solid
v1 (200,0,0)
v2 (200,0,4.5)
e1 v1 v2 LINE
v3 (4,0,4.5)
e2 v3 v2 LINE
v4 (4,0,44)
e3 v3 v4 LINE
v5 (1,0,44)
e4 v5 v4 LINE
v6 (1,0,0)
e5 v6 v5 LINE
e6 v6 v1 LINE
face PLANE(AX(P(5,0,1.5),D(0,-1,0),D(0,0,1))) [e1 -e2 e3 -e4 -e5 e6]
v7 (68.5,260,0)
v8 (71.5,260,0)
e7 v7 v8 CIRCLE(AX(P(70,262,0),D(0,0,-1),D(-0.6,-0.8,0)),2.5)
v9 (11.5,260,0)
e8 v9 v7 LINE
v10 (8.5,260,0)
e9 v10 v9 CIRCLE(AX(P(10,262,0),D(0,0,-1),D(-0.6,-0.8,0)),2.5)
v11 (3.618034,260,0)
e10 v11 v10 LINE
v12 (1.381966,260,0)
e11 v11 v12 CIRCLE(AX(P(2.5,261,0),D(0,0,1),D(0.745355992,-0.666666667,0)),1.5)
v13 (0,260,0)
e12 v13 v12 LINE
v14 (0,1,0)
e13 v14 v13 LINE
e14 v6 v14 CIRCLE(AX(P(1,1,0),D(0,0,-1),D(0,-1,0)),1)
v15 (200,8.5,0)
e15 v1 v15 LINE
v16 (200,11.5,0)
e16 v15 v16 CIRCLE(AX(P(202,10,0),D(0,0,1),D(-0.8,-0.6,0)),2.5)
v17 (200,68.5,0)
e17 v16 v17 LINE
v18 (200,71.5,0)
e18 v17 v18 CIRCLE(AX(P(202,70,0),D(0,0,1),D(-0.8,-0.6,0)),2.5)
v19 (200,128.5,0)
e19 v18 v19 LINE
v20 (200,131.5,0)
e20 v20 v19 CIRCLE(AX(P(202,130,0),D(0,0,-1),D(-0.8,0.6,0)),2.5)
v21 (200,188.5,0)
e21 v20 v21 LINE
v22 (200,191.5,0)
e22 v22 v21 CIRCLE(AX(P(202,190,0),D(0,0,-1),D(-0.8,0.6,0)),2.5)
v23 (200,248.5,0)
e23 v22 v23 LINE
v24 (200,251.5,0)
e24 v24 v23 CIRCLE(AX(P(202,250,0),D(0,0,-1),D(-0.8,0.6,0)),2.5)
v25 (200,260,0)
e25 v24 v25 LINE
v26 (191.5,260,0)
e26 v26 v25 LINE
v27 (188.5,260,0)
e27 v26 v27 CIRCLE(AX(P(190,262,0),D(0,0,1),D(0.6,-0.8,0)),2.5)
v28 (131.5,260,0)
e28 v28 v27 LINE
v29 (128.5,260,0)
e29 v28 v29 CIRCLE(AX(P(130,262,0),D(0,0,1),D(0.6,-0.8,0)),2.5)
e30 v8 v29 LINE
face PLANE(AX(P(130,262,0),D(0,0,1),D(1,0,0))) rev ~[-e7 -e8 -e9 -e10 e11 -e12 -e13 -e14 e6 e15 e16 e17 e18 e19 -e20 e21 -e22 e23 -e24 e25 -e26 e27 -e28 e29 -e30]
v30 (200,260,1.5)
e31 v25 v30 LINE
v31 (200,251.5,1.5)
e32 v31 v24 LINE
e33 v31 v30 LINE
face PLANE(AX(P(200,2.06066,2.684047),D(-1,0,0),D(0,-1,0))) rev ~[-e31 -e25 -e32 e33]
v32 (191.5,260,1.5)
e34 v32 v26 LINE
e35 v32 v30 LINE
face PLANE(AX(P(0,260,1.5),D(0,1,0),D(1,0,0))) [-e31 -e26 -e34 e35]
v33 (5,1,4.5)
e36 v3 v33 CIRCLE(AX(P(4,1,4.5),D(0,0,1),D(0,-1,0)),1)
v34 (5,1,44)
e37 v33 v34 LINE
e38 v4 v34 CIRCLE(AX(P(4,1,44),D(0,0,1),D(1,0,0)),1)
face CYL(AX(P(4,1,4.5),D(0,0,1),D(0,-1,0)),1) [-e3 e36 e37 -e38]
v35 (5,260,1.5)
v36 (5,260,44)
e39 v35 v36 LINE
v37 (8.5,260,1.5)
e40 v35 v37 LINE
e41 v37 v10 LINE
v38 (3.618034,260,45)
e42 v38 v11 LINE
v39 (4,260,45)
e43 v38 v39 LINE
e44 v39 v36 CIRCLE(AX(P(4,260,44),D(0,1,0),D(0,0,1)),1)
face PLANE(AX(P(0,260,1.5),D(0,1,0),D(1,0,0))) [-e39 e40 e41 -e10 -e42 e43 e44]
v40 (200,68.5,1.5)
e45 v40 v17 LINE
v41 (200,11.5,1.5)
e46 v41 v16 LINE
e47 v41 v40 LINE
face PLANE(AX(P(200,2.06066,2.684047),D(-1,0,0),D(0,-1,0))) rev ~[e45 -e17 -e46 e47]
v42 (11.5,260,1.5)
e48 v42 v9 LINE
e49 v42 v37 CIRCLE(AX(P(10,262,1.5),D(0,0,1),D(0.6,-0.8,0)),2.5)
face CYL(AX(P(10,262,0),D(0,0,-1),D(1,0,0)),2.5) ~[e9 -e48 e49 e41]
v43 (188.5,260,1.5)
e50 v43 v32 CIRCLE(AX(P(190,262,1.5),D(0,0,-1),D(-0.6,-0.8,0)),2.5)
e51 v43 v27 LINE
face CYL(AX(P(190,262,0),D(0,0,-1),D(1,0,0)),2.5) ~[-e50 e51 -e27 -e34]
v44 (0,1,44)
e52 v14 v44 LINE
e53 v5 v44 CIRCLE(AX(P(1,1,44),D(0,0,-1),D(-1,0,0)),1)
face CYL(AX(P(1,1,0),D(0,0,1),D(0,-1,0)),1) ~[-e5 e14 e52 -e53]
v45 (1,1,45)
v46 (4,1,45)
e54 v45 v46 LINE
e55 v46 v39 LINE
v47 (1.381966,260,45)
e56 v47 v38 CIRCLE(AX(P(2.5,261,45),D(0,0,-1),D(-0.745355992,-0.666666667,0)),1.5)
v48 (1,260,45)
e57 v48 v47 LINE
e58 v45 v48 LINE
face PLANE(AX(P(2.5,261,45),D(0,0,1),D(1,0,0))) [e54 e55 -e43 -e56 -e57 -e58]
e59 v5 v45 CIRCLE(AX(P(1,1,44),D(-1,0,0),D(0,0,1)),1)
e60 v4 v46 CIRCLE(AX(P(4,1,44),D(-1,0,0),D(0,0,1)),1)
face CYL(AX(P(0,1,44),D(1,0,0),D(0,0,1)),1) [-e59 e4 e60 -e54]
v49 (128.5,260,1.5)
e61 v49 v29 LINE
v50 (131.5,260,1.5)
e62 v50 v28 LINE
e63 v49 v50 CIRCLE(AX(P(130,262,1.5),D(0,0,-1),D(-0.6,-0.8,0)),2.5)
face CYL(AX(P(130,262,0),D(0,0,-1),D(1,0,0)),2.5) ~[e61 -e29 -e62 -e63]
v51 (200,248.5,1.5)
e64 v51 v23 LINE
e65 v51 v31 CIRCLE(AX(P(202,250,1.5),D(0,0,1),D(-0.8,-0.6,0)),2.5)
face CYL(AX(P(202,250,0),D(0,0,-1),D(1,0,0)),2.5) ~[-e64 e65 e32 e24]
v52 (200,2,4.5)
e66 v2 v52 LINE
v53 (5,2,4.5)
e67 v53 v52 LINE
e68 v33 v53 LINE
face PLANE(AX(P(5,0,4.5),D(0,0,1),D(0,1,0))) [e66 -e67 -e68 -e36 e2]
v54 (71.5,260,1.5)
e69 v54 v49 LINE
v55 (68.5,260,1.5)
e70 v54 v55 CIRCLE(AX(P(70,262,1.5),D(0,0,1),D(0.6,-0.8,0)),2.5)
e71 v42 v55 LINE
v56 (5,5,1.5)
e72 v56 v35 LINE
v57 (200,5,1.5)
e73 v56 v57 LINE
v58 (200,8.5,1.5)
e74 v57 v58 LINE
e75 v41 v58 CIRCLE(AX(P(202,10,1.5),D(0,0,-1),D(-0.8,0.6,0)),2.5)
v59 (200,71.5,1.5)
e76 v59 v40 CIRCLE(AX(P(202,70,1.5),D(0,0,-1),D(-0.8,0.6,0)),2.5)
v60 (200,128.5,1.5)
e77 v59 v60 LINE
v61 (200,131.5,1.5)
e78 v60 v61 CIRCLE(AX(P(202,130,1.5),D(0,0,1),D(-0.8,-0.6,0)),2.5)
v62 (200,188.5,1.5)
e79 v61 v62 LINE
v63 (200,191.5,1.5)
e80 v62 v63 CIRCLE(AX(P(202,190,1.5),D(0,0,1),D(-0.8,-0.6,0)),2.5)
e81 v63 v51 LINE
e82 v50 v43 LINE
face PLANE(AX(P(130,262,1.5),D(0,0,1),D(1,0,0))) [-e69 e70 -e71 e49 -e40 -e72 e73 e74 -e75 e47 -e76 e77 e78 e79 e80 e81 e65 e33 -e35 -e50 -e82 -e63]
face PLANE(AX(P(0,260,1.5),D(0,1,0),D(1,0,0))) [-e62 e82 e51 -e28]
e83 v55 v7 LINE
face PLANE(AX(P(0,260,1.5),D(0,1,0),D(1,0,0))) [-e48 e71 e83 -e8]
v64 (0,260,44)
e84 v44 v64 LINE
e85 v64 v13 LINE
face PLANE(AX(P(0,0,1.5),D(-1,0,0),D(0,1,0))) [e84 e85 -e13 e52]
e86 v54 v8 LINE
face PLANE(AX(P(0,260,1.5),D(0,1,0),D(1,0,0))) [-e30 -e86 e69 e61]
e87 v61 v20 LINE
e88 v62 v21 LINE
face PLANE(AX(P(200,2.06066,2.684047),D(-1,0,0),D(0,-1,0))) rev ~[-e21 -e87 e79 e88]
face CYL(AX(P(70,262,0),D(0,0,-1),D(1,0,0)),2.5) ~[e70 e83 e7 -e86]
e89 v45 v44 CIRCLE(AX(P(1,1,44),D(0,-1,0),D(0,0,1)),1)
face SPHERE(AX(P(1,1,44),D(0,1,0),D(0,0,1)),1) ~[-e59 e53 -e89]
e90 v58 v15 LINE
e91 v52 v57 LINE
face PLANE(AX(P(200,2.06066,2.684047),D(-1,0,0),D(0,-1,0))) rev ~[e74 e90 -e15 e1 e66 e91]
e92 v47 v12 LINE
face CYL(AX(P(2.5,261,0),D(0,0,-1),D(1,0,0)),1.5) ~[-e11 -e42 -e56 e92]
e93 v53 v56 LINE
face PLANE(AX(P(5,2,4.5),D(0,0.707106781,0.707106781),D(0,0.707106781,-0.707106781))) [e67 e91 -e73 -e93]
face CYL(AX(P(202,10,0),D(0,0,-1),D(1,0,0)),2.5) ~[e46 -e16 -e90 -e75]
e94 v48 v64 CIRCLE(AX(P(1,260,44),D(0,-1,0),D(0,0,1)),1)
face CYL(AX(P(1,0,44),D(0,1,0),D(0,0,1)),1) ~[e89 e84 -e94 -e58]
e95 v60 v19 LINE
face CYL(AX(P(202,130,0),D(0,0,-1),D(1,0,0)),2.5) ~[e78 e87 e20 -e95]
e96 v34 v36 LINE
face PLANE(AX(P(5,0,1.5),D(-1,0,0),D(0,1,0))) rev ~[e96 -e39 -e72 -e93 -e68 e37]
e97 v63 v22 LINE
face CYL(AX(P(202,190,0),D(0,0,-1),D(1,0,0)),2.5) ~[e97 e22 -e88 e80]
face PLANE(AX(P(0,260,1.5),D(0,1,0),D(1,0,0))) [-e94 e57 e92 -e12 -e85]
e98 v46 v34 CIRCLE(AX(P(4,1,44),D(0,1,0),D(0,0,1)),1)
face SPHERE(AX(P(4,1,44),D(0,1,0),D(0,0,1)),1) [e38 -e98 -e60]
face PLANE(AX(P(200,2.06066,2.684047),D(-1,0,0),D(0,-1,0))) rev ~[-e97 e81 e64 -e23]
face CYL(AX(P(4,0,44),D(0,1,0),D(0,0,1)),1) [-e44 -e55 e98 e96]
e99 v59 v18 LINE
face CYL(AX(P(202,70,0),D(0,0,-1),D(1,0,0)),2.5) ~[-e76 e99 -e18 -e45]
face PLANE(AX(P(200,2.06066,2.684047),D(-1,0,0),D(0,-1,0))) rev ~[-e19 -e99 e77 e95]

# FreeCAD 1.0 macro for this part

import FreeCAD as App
import Part
import Sketcher
from FreeCAD import Vector
Q = App.Units.Quantity


def edges_at(feature, points):
    """Names of the edges that pass closest to the given points."""
    edges = feature.Shape.Edges
    near = lambda p: min(range(len(edges)), key=lambda i: edges[i].distToShape(Part.Vertex(*p))[0])
    return sorted({f"Edge{near(p) + 1}" for p in points})

doc = App.newDocument("Part")
body = doc.addObject("PartDesign::Body", "Body")

# Sketch on XY plane
sketch1 = body.newObject("Sketcher::SketchObject", "Sketch")
sketch1.AttachmentSupport = (doc.getObject("XY_Plane"), [""])
sketch1.MapMode = "FlatFace"
sketch1.addGeometry([
    Part.LineSegment(Vector(0, 260, 0), Vector(0, 0, 0)),
    Part.LineSegment(Vector(0, 0, 0), Vector(200, 0, 0)),
    Part.LineSegment(Vector(200, 0, 0), Vector(200, 260, 0)),
    Part.LineSegment(Vector(200, 260, 0), Vector(0, 260, 0)),
], False)
sketch1.addConstraint([
    Sketcher.Constraint("Coincident", 0, 2, 1, 1),
    Sketcher.Constraint("Coincident", 1, 2, 2, 1),
    Sketcher.Constraint("Coincident", 2, 2, 3, 1),
    Sketcher.Constraint("Coincident", 3, 2, 0, 1),
    Sketcher.Constraint("Vertical", 0),
    Sketcher.Constraint("Horizontal", 1),
    Sketcher.Constraint("Vertical", 2),
    Sketcher.Constraint("Horizontal", 3),
    Sketcher.Constraint("Coincident", 0, 2, -1, 1),
    Sketcher.Constraint("DistanceX", 1, 1, 1, 2, Q("200 mm")),
    Sketcher.Constraint("DistanceY", 0, 2, 0, 1, Q("260 mm")),
])
pad1 = body.newObject("PartDesign::Pad", "Pad")
pad1.Profile = sketch1
pad1.Length = 1.5

# Sketch on XY plane
sketch2 = body.newObject("Sketcher::SketchObject", "Sketch001")
sketch2.AttachmentSupport = (doc.getObject("XY_Plane"), [""])
sketch2.MapMode = "FlatFace"
sketch2.AttachmentOffset = App.Placement(Vector(0, 0, 1.5), App.Rotation())
sketch2.addGeometry([
    Part.LineSegment(Vector(0, 260, 0), Vector(0, 0, 0)),
    Part.LineSegment(Vector(0, 0, 0), Vector(5, 0, 0)),
    Part.LineSegment(Vector(5, 0, 0), Vector(5, 260, 0)),
    Part.LineSegment(Vector(5, 260, 0), Vector(0, 260, 0)),
], False)
sketch2.addConstraint([
    Sketcher.Constraint("Coincident", 0, 2, 1, 1),
    Sketcher.Constraint("Coincident", 1, 2, 2, 1),
    Sketcher.Constraint("Coincident", 2, 2, 3, 1),
    Sketcher.Constraint("Coincident", 3, 2, 0, 1),
    Sketcher.Constraint("Vertical", 0),
    Sketcher.Constraint("Horizontal", 1),
    Sketcher.Constraint("Vertical", 2),
    Sketcher.Constraint("Horizontal", 3),
    Sketcher.Constraint("Coincident", 0, 2, -1, 1),
    Sketcher.Constraint("DistanceX", 1, 1, 1, 2, Q("5 mm")),
    Sketcher.Constraint("DistanceY", 0, 2, 0, 1, Q("260 mm")),
])
pad2 = body.newObject("PartDesign::Pad", "Pad001")
pad2.Profile = sketch2
pad2.Length = 43.5

# Sketch on YZ plane
sketch3 = body.newObject("Sketcher::SketchObject", "Sketch002")
sketch3.AttachmentSupport = (doc.getObject("YZ_Plane"), [""])
sketch3.MapMode = "FlatFace"
sketch3.AttachmentOffset = App.Placement(Vector(0, 0, 5), App.Rotation())
sketch3.addGeometry([
    Part.LineSegment(Vector(0, 4.5, 0), Vector(0, 1.5, 0)),
    Part.LineSegment(Vector(0, 1.5, 0), Vector(5, 1.5, 0)),
    Part.LineSegment(Vector(5, 1.5, 0), Vector(2, 4.5, 0)),
    Part.LineSegment(Vector(2, 4.5, 0), Vector(0, 4.5, 0)),
], False)
sketch3.addConstraint([
    Sketcher.Constraint("Coincident", 0, 2, 1, 1),
    Sketcher.Constraint("Coincident", 1, 2, 2, 1),
    Sketcher.Constraint("Coincident", 2, 2, 3, 1),
    Sketcher.Constraint("Coincident", 3, 2, 0, 1),
    Sketcher.Constraint("Vertical", 0),
    Sketcher.Constraint("Horizontal", 1),
    Sketcher.Constraint("Horizontal", 3),
    Sketcher.Constraint("PointOnObject", 0, 2, -2),
    Sketcher.Constraint("DistanceX", 1, 1, 1, 2, Q("5 mm")),
    Sketcher.Constraint("DistanceX", 3, 2, 3, 1, Q("2 mm")),
    Sketcher.Constraint("DistanceY", 0, 2, 0, 1, Q("3 mm")),
    Sketcher.Constraint("DistanceY", -1, 1, 0, 2, Q("1.5 mm")),
])
pad3 = body.newObject("PartDesign::Pad", "Pad002")
pad3.Profile = sketch3
pad3.Length = 195

# Sketch on XY plane
sketch4 = body.newObject("Sketcher::SketchObject", "Sketch003")
sketch4.AttachmentSupport = (doc.getObject("XY_Plane"), [""])
sketch4.MapMode = "FlatFace"
sketch4.addGeometry(Part.Circle(Vector(202, 10, 0), Vector(0, 0, 1), 2.5), False)
sketch4.addConstraint([
    Sketcher.Constraint("Diameter", 0, Q("5 mm")),
    Sketcher.Constraint("DistanceX", -1, 1, 0, 3, Q("202 mm")),
    Sketcher.Constraint("DistanceY", -1, 1, 0, 3, Q("10 mm")),
])
pad4 = body.newObject("PartDesign::Pad", "Pad003")
pad4.Profile = sketch4
pad4.Length = 1.5
doc.recompute()

linearpattern = body.newObject("PartDesign::LinearPattern", "LinearPattern")
linearpattern.Originals = [pad4]
linearpattern.Direction = (doc.getObject("Y_Axis"), [""])
linearpattern.Mode = "offset"
linearpattern.Offset = 60
linearpattern.Occurrences = 5
body.Tip = linearpattern

# Sketch on XY plane
sketch5 = body.newObject("Sketcher::SketchObject", "Sketch004")
sketch5.AttachmentSupport = (doc.getObject("XY_Plane"), [""])
sketch5.MapMode = "FlatFace"
sketch5.addGeometry(Part.Circle(Vector(2.5, 261, 0), Vector(0, 0, 1), 1.5), False)
sketch5.addConstraint([
    Sketcher.Constraint("Diameter", 0, Q("3 mm")),
    Sketcher.Constraint("DistanceY", -1, 1, 0, 3, Q("261 mm")),
    Sketcher.Constraint("DistanceX", -1, 1, 0, 3, Q("2.5 mm")),
])
pad5 = body.newObject("PartDesign::Pad", "Pad004")
pad5.Profile = sketch5
pad5.Length = 45

# Sketch on XY plane
sketch6 = body.newObject("Sketcher::SketchObject", "Sketch005")
sketch6.AttachmentSupport = (doc.getObject("XY_Plane"), [""])
sketch6.MapMode = "FlatFace"
sketch6.addGeometry(Part.Circle(Vector(190, 262, 0), Vector(0, 0, 1), 2.5), False)
sketch6.addConstraint([
    Sketcher.Constraint("Diameter", 0, Q("5 mm")),
    Sketcher.Constraint("DistanceX", -1, 1, 0, 3, Q("190 mm")),
    Sketcher.Constraint("DistanceY", -1, 1, 0, 3, Q("262 mm")),
])
pad6 = body.newObject("PartDesign::Pad", "Pad005")
pad6.Profile = sketch6
pad6.Length = 1.5
doc.recompute()

linearpattern2 = body.newObject("PartDesign::LinearPattern", "LinearPattern001")
linearpattern2.Originals = [pad6]
linearpattern2.Direction = (doc.getObject("X_Axis"), [""])
linearpattern2.Mode = "offset"
linearpattern2.Offset = 60
linearpattern2.Occurrences = 4
linearpattern2.Reversed = True
body.Tip = linearpattern2
doc.recompute()

fillet = body.newObject("PartDesign::Fillet", "Fillet")
fillet.Base = (linearpattern2, edges_at(linearpattern2, [
    (0, 130, 45),
    (5, 130, 45),
    (2.5, 0, 45),
    (0, 0, 22.5),
    (5, 0, 24.75),
]))
fillet.Radius = 1

doc.recompute()
